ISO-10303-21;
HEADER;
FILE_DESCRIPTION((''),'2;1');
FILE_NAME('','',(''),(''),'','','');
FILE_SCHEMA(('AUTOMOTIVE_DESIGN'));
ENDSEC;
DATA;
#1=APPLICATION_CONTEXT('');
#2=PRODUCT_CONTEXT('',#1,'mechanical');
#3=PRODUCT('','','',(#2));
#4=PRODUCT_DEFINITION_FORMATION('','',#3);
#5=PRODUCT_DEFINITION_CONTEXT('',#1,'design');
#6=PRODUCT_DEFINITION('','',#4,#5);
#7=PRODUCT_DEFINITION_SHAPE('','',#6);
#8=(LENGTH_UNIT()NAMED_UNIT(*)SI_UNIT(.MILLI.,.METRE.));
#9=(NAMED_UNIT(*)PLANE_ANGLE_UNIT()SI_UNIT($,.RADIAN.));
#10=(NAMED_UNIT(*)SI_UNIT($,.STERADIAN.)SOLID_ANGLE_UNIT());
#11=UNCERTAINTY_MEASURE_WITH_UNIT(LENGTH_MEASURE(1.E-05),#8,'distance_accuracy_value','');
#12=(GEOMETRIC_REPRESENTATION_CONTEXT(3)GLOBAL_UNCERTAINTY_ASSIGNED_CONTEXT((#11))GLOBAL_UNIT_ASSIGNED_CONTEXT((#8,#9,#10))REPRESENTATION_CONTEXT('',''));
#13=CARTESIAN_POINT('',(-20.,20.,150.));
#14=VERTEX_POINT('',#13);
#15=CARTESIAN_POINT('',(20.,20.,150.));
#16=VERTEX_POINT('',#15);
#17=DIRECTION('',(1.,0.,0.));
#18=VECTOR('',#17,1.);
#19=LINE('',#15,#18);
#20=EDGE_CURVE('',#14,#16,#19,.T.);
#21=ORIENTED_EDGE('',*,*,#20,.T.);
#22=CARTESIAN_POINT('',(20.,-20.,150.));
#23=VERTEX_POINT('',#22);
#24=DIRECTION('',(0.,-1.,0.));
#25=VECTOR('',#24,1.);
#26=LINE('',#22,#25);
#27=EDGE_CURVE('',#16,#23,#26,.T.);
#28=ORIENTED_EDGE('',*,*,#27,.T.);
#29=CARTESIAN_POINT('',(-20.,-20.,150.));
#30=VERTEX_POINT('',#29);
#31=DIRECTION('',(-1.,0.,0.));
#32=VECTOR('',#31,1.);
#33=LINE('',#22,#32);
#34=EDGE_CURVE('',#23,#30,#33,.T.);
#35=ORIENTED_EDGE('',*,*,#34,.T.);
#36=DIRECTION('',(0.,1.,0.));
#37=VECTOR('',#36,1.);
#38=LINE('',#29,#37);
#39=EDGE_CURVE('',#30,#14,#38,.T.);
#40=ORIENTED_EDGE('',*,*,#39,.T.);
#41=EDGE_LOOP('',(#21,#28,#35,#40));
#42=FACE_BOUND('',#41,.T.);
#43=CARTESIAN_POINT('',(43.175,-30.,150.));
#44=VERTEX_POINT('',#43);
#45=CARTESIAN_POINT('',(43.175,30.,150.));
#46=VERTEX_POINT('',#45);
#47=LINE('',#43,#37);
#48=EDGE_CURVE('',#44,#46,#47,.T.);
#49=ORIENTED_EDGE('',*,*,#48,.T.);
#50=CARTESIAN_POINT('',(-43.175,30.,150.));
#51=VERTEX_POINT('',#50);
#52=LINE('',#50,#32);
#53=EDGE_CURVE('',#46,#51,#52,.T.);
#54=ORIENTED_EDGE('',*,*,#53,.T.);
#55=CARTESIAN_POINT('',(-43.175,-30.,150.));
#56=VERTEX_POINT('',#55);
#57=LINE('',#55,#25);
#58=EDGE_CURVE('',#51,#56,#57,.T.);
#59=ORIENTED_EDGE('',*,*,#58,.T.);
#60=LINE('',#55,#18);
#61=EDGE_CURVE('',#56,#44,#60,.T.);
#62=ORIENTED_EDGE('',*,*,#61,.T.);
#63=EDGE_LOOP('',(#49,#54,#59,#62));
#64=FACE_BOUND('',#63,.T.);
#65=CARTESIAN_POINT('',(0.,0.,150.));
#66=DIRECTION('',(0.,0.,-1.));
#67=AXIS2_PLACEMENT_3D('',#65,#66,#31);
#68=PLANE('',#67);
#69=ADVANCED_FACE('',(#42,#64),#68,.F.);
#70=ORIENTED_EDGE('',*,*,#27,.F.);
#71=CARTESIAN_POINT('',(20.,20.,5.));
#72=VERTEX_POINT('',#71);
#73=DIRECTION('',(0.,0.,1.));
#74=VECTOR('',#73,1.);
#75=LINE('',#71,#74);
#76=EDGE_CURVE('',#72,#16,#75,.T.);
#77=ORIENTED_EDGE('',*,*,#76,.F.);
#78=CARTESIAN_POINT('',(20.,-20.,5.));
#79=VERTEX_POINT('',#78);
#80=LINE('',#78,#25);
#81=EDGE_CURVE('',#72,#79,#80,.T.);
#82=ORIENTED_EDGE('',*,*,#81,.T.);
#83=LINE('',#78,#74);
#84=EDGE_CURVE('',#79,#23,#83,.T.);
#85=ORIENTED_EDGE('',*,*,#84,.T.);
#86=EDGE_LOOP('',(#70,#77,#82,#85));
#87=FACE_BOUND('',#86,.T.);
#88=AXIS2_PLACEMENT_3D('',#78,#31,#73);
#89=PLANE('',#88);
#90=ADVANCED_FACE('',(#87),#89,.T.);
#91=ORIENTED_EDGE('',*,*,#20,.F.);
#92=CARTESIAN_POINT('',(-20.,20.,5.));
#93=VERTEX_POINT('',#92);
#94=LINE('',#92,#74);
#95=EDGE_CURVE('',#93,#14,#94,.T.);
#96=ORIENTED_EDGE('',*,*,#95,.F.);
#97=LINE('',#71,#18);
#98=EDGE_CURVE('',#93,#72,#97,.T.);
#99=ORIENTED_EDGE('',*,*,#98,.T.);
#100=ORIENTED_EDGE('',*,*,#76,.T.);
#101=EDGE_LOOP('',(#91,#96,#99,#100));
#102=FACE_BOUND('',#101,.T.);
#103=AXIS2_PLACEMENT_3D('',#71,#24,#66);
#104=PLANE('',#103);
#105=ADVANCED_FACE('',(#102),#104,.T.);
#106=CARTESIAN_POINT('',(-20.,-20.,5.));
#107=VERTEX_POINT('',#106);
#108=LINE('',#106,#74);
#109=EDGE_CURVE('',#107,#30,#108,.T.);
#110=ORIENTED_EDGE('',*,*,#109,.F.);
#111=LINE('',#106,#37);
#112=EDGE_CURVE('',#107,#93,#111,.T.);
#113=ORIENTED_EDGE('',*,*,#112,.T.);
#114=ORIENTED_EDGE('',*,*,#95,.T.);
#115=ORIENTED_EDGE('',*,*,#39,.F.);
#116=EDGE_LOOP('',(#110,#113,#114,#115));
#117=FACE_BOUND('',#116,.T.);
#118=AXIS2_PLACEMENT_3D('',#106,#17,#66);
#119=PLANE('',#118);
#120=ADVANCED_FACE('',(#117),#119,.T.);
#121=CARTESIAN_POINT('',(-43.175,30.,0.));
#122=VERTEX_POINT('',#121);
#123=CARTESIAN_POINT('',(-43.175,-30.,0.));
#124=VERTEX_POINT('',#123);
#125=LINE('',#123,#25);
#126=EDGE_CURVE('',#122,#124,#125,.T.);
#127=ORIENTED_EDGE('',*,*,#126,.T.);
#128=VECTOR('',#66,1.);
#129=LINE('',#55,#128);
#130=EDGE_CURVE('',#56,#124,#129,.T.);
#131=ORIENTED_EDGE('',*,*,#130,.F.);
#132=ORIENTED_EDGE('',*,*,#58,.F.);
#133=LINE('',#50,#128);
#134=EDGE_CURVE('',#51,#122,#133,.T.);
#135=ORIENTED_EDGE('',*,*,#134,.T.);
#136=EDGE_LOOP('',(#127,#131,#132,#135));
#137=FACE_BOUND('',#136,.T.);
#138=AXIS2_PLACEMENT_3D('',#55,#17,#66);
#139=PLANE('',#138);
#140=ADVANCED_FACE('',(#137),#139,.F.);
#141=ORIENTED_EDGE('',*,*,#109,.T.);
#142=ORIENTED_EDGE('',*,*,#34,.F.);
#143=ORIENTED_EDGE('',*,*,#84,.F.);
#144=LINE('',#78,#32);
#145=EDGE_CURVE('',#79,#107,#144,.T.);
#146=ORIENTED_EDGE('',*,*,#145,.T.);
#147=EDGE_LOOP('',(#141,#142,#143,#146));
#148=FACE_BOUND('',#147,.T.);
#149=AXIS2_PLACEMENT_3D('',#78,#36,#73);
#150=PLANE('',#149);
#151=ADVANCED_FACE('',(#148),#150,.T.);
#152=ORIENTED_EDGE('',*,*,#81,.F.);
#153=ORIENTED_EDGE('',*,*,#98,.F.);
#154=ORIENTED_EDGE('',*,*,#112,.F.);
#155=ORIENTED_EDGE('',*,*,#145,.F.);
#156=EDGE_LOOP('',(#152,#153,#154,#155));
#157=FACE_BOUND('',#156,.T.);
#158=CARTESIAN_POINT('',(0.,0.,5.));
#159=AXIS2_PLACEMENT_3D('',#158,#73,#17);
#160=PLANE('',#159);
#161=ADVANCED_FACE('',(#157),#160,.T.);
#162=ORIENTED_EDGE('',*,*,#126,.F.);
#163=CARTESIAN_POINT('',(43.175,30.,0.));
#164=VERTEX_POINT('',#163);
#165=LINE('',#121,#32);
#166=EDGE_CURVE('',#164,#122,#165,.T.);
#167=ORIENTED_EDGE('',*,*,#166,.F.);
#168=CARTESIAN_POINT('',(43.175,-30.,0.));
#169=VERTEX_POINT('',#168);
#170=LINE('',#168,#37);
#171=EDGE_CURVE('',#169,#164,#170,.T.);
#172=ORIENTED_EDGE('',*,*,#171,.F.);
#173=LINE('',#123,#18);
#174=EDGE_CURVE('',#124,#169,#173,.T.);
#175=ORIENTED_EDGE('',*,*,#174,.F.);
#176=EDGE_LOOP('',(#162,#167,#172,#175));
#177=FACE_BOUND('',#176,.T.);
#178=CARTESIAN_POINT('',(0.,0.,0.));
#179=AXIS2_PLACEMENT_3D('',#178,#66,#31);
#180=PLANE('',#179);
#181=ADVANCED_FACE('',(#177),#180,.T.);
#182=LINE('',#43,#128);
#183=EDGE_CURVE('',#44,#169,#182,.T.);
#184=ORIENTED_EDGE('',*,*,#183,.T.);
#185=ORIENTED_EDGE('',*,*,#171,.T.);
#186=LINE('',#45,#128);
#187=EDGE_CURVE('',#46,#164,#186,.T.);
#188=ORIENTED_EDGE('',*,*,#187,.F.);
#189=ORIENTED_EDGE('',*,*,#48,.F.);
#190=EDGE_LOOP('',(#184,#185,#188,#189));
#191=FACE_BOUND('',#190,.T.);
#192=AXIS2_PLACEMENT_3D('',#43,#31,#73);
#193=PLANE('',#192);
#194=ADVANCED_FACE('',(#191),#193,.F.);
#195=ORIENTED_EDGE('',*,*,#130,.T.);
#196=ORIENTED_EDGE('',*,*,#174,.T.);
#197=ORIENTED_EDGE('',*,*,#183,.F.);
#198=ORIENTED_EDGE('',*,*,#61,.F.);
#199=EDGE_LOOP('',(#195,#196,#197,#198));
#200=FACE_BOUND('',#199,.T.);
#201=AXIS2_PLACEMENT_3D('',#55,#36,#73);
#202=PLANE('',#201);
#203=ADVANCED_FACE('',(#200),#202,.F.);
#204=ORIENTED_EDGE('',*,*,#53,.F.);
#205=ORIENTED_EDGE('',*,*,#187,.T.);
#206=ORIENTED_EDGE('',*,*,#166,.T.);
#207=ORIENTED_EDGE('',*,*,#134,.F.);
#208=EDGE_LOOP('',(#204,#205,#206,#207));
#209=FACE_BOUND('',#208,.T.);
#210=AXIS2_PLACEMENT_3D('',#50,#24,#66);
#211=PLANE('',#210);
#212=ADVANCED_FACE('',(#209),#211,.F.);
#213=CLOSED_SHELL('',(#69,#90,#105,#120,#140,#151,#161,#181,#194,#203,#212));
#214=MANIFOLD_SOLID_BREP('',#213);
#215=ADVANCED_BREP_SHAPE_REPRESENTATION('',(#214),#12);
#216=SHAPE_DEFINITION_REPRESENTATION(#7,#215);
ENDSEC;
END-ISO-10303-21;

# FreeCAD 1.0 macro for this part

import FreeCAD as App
import Part
import Sketcher

doc = App.newDocument("Part")
params = doc.addObject("Spreadsheet::Sheet", "Params")
for row, (alias, value) in enumerate([
    ("sketch1_height", "60 mm"),
    ("sketch1_width", "86.35 mm"),
    ("pad1_length", "150 mm"),
    ("sketch2_width", "40 mm"),
    ("pocket1_length", "145 mm"),
], start=1):
    params.set(f"A{row}", alias)
    params.set(f"B{row}", "=" + value)
    params.setAlias(f"B{row}", alias)

body = doc.addObject("PartDesign::Body", "Body")

# Sketch on XY plane
sketch1 = body.newObject("Sketcher::SketchObject", "Sketch")
sketch1.AttachmentSupport = (doc.getObject("XY_Plane"), [""])
sketch1.MapMode = "FlatFace"
sketch1.addGeometry(Part.LineSegment(App.Vector(-43, 30, 0), App.Vector(-43, -30, 0)), False)
sketch1.addGeometry(Part.LineSegment(App.Vector(-43, -30, 0), App.Vector(43, -30, 0)), False)
sketch1.addGeometry(Part.LineSegment(App.Vector(43, -30, 0), App.Vector(43, 30, 0)), False)
sketch1.addGeometry(Part.LineSegment(App.Vector(43, 30, 0), App.Vector(-43, 30, 0)), False)
sketch1.addConstraint(Sketcher.Constraint("Coincident", 0, 2, 1, 1))
sketch1.addConstraint(Sketcher.Constraint("Coincident", 1, 2, 2, 1))
sketch1.addConstraint(Sketcher.Constraint("Coincident", 2, 2, 3, 1))
sketch1.addConstraint(Sketcher.Constraint("Coincident", 3, 2, 0, 1))
sketch1.addConstraint(Sketcher.Constraint("Vertical", 0))
sketch1.addConstraint(Sketcher.Constraint("Horizontal", 1))
sketch1.addConstraint(Sketcher.Constraint("Vertical", 2))
sketch1.addConstraint(Sketcher.Constraint("Horizontal", 3))
sketch1.addConstraint(Sketcher.Constraint("Symmetric", 0, 2, 2, 2, -1, 1))
sketch1.addConstraint(Sketcher.Constraint("DistanceY", 0, 2, 0, 1, 60.0))
sketch1.addConstraint(Sketcher.Constraint("DistanceX", 1, 1, 1, 2, 86.35))
sketch1.setExpression("Constraints[9]", "Params.sketch1_height")
sketch1.setExpression("Constraints[10]", "Params.sketch1_width")
pad1 = body.newObject("PartDesign::Pad", "Pad")
pad1.Profile = sketch1
pad1.setExpression("Length", "Params.pad1_length")

# Sketch on XY plane
sketch2 = body.newObject("Sketcher::SketchObject", "Sketch001")
sketch2.AttachmentSupport = (doc.getObject("XY_Plane"), [""])
sketch2.MapMode = "FlatFace"
sketch2.AttachmentOffset = App.Placement(App.Vector(0, 0, 150), App.Rotation())
sketch2.addGeometry(Part.LineSegment(App.Vector(20, 20, 0), App.Vector(20, -20, 0)), False)
sketch2.addGeometry(Part.LineSegment(App.Vector(20, -20, 0), App.Vector(-20, -20, 0)), False)
sketch2.addGeometry(Part.LineSegment(App.Vector(-20, -20, 0), App.Vector(-20, 20, 0)), False)
sketch2.addGeometry(Part.LineSegment(App.Vector(-20, 20, 0), App.Vector(20, 20, 0)), False)
sketch2.addConstraint(Sketcher.Constraint("Coincident", 0, 2, 1, 1))
sketch2.addConstraint(Sketcher.Constraint("Coincident", 1, 2, 2, 1))
sketch2.addConstraint(Sketcher.Constraint("Coincident", 2, 2, 3, 1))
sketch2.addConstraint(Sketcher.Constraint("Coincident", 3, 2, 0, 1))
sketch2.addConstraint(Sketcher.Constraint("Vertical", 0))
sketch2.addConstraint(Sketcher.Constraint("Horizontal", 1))
sketch2.addConstraint(Sketcher.Constraint("Vertical", 2))
sketch2.addConstraint(Sketcher.Constraint("Horizontal", 3))
sketch2.addConstraint(Sketcher.Constraint("Symmetric", 0, 2, 2, 2, -1, 1))
sketch2.addConstraint(Sketcher.Constraint("Equal", 3, 0))
sketch2.addConstraint(Sketcher.Constraint("DistanceX", 1, 2, 1, 1, 40.0))
sketch2.setExpression("Constraints[10]", "Params.sketch2_width")
pocket1 = body.newObject("PartDesign::Pocket", "Pocket")
pocket1.Profile = sketch2
pocket1.setExpression("Length", "Params.pocket1_length")

doc.recompute()
